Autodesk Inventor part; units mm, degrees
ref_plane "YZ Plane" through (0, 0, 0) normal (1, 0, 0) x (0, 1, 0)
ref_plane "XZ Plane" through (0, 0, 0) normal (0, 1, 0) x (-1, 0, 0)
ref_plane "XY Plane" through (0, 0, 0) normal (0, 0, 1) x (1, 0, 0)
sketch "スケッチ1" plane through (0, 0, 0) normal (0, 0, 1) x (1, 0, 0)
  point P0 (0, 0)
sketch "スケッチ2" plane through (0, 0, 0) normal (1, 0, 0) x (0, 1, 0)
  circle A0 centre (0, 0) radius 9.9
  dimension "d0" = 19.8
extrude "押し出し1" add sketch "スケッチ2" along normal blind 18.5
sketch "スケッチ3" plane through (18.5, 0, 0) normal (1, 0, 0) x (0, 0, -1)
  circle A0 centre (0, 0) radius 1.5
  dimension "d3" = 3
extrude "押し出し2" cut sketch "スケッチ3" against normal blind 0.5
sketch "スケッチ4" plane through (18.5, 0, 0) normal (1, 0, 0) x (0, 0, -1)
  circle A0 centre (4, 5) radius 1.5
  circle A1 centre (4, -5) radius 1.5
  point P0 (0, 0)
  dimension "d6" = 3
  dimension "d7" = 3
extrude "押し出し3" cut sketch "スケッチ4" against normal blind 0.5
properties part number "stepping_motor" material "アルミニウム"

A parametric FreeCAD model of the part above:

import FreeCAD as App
import Part
import Sketcher

V = App.Vector

doc = App.newDocument("Part")
body = doc.addObject("PartDesign::Body", "Body")

# Sketch on YZ plane
sketch1 = body.newObject("Sketcher::SketchObject", "Sketch")
sketch1.AttachmentSupport = (doc.getObject("YZ_Plane"), [""])
sketch1.MapMode = "FlatFace"
sketch1.addGeometry(Part.Circle(V(0, 0, 0), V(0, 0, 1), 10), False)
sketch1.addConstraint(Sketcher.Constraint("Coincident", 0, 3, -1, 1))
sketch1.addConstraint(Sketcher.Constraint("Diameter", 0, 19.8))
pad1 = body.newObject("PartDesign::Pad", "Pad")
pad1.Profile = sketch1
pad1.Length = 18.5

# Sketch on YZ plane
sketch2 = body.newObject("Sketcher::SketchObject", "Sketch001")
sketch2.AttachmentSupport = (doc.getObject("YZ_Plane"), [""])
sketch2.MapMode = "FlatFace"
sketch2.AttachmentOffset = App.Placement(V(0, 0, 18.5), App.Rotation())
sketch2.addGeometry(Part.Circle(V(0, 0, 0), V(0, 0, 1), 1.5), False)
sketch2.addConstraint(Sketcher.Constraint("Coincident", 0, 3, -1, 1))
sketch2.addConstraint(Sketcher.Constraint("Diameter", 0, 3.0))
pocket1 = body.newObject("PartDesign::Pocket", "Pocket")
pocket1.Profile = sketch2
pocket1.Length = 0.5

# Sketch on YZ plane
sketch3 = body.newObject("Sketcher::SketchObject", "Sketch002")
sketch3.AttachmentSupport = (doc.getObject("YZ_Plane"), [""])
sketch3.MapMode = "FlatFace"
sketch3.AttachmentOffset = App.Placement(V(0, 0, 18.5), App.Rotation())
sketch3.addGeometry(Part.Circle(V(5, -4, 0), V(0, 0, 1), 1.5), False)
sketch3.addGeometry(Part.Circle(V(-5, -4, 0), V(0, 0, 1), 1.5), False)
sketch3.addConstraint(Sketcher.Constraint("Equal", 0, 1))
sketch3.addConstraint(Sketcher.Constraint("Symmetric", 0, 3, 1, 3, -2))
sketch3.addConstraint(Sketcher.Constraint("Diameter", 0, 3.0))
sketch3.addConstraint(Sketcher.Constraint("DistanceX", -1, 1, 0, 3, 5.0))
sketch3.addConstraint(Sketcher.Constraint("DistanceY", 0, 3, -1, 1, 4.0))
pocket2 = body.newObject("PartDesign::Pocket", "Pocket001")
pocket2.Profile = sketch3
pocket2.Length = 0.5

doc.recompute()
